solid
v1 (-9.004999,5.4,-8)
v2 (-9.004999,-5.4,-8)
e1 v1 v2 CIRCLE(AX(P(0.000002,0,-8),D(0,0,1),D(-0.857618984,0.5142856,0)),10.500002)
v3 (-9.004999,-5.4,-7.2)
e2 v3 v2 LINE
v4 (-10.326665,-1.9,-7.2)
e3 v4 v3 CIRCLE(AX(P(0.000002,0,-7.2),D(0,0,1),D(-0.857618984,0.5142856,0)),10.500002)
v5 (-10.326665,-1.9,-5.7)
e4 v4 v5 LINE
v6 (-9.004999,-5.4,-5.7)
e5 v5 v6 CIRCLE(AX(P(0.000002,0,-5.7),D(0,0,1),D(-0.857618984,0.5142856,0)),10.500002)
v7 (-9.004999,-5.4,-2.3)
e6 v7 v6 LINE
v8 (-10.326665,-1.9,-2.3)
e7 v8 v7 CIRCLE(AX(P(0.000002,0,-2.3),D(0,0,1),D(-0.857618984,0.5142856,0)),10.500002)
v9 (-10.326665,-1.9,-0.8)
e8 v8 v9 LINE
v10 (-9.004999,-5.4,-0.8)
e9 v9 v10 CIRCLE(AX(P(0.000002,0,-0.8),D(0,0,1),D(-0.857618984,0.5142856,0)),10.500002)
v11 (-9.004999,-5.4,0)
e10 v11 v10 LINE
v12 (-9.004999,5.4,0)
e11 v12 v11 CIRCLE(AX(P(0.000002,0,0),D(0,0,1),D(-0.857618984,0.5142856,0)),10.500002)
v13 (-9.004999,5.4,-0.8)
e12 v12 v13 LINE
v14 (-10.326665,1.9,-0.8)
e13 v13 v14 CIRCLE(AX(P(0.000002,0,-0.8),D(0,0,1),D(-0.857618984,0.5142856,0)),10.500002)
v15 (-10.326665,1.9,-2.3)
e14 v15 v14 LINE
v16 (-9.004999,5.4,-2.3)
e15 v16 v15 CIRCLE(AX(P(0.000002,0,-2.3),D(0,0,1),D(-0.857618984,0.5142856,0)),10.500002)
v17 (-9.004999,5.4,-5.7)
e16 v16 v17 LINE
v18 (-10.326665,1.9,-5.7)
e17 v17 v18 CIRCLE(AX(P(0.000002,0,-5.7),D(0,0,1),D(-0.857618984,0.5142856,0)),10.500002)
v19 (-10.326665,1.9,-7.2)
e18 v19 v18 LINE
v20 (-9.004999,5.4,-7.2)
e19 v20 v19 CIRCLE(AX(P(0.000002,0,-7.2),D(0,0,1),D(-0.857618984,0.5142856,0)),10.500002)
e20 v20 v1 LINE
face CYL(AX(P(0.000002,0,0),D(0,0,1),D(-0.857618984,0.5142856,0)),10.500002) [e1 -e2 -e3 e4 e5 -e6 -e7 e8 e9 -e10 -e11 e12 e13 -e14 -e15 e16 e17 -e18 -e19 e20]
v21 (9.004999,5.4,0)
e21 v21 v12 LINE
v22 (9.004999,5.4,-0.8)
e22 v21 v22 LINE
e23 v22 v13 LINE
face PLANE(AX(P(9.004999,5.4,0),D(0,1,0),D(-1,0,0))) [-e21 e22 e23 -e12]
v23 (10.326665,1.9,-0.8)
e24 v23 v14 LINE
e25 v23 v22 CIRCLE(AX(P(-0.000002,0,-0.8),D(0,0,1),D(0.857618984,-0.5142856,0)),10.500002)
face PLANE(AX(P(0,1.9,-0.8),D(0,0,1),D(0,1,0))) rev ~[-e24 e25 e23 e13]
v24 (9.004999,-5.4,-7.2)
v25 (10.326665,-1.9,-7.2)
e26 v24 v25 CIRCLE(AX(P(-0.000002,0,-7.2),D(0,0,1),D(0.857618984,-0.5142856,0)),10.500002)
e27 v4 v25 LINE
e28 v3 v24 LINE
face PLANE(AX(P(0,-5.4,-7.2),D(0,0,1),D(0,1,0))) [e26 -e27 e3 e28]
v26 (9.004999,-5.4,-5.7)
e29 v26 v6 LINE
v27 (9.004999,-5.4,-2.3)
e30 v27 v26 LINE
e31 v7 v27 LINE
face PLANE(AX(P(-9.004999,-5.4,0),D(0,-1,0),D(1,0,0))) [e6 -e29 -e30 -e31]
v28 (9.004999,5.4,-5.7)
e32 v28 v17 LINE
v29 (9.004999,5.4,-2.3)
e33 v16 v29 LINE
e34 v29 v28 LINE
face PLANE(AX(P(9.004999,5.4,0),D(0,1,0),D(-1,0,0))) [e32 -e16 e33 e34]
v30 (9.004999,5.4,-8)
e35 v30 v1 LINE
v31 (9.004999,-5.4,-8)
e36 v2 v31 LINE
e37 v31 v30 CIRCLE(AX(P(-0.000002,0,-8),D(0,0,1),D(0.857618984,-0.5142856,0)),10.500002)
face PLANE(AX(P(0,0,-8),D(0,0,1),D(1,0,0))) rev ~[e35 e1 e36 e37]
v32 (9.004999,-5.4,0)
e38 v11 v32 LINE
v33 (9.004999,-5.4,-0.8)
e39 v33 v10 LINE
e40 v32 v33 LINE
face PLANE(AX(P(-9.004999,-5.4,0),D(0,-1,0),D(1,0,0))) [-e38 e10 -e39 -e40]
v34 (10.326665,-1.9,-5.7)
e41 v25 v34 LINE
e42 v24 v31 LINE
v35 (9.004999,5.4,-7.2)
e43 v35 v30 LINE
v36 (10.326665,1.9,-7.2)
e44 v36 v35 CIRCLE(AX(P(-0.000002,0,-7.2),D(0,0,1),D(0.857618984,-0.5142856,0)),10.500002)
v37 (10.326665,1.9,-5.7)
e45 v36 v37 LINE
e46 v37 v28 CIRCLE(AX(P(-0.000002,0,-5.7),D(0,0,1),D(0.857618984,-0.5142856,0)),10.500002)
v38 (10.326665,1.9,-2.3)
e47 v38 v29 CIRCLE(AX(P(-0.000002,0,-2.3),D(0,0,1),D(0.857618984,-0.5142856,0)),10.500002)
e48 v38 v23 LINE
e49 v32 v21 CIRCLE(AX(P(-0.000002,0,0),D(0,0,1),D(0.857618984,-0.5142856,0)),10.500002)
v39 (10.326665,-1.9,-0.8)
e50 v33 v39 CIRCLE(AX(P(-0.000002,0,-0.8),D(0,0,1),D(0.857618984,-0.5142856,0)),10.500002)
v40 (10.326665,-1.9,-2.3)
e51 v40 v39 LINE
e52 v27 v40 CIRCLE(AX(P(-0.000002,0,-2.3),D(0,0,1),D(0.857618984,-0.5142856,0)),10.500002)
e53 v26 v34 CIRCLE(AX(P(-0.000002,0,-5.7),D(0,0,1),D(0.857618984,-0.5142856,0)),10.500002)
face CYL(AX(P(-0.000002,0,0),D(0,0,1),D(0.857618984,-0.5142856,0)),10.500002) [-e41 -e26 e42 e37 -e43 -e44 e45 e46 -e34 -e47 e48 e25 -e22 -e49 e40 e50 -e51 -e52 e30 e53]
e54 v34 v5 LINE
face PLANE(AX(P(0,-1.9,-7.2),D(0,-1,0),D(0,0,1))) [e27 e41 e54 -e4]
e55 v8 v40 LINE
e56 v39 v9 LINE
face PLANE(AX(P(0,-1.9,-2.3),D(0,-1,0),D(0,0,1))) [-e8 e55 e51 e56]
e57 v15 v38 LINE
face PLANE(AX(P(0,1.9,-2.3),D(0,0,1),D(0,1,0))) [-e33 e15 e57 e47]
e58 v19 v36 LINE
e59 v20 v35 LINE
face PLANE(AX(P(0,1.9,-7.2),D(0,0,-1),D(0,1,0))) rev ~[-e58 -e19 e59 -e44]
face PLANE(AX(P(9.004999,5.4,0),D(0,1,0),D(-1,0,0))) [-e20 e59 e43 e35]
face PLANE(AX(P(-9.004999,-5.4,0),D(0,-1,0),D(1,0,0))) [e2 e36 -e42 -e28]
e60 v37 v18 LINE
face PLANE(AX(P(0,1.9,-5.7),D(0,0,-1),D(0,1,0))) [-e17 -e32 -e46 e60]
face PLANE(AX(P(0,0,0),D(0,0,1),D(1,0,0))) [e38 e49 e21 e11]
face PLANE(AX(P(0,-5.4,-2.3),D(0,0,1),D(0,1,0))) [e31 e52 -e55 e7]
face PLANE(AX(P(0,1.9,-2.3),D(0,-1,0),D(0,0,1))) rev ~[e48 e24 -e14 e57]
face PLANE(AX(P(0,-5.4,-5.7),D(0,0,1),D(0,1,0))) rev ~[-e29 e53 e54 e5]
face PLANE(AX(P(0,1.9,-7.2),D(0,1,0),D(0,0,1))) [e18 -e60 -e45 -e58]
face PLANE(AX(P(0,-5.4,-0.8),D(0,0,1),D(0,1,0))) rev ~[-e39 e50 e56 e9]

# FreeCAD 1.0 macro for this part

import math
import FreeCAD as App
import Part
import Sketcher

V = App.Vector
Q = App.Units.Quantity

doc = App.newDocument("Part")
body = doc.addObject("PartDesign::Body", "Body")

# Sketch on XY plane
sketch1 = body.newObject("Sketcher::SketchObject", "Sketch")
sketch1.AttachmentSupport = (doc.getObject("XY_Plane"), [""])
sketch1.MapMode = "FlatFace"
sketch1.addGeometry([
    Part.ArcOfCircle(Part.Circle(V(0, 0, 0), V(0, 0, 1), 11), math.radians(-31), math.radians(31)),
    Part.LineSegment(V(9, 5, 0), V(-9, 5, 0)),
    Part.ArcOfCircle(Part.Circle(V(0, 0, 0), V(0, 0, 1), 11), math.radians(149), math.radians(211)),
    Part.LineSegment(V(-9, -5, 0), V(9, -5, 0)),
], False)
sketch1.addConstraint([
    Sketcher.Constraint("Coincident", 0, 2, 1, 1),
    Sketcher.Constraint("Coincident", 1, 2, 2, 1),
    Sketcher.Constraint("Coincident", 2, 2, 3, 1),
    Sketcher.Constraint("Coincident", 3, 2, 0, 1),
    Sketcher.Constraint("Horizontal", 1),
    Sketcher.Constraint("Horizontal", 3),
    Sketcher.Constraint("Coincident", 0, 3, -1, 1),
    Sketcher.Constraint("Coincident", 2, 3, -1, 1),
    Sketcher.Constraint("Equal", 0, 2),
    Sketcher.Constraint("Vertical", 1, 2, 2, 2),
    Sketcher.Constraint("DistanceY", -1, 1, 0, 2, Q("5.4 mm")),
    Sketcher.Constraint("DistanceX", 1, 2, 0, 2, Q("18.009998 mm")),
])
pad1 = body.newObject("PartDesign::Pad", "Pad")
pad1.Profile = sketch1
pad1.Length = 8
pad1.Reversed = True

# Sketch on YZ plane
sketch2 = body.newObject("Sketcher::SketchObject", "Sketch001")
sketch2.AttachmentSupport = (doc.getObject("YZ_Plane"), [""])
sketch2.MapMode = "FlatFace"
sketch2.addGeometry([
    Part.LineSegment(V(1.9, -0.8, 0), V(1.9, -2.3, 0)),  # 0
    Part.LineSegment(V(1.9, -2.3, 0), V(5.4, -2.3, 0)),  # 1
    Part.LineSegment(V(5.4, -2.3, 0), V(5.4, -0.8, 0)),  # 2
    Part.LineSegment(V(5.4, -0.8, 0), V(1.9, -0.8, 0)),  # 3
    Part.LineSegment(V(-5.4, -0.8, 0), V(-5.4, -2.3, 0)),  # 4
    Part.LineSegment(V(-5.4, -2.3, 0), V(-1.9, -2.3, 0)),  # 5
    Part.LineSegment(V(-1.9, -2.3, 0), V(-1.9, -0.8, 0)),  # 6
    Part.LineSegment(V(-1.9, -0.8, 0), V(-5.4, -0.8, 0)),  # 7
    Part.LineSegment(V(-5.4, -5.7, 0), V(-5.4, -7.2, 0)),  # 8
    Part.LineSegment(V(-5.4, -7.2, 0), V(-1.9, -7.2, 0)),  # 9
    Part.LineSegment(V(-1.9, -7.2, 0), V(-1.9, -5.7, 0)),  # 10
    Part.LineSegment(V(-1.9, -5.7, 0), V(-5.4, -5.7, 0)),  # 11
    Part.LineSegment(V(1.9, -5.7, 0), V(1.9, -7.2, 0)),  # 12
    Part.LineSegment(V(1.9, -7.2, 0), V(5.4, -7.2, 0)),  # 13
    Part.LineSegment(V(5.4, -7.2, 0), V(5.4, -5.7, 0)),  # 14
    Part.LineSegment(V(5.4, -5.7, 0), V(1.9, -5.7, 0)),  # 15
], False)
sketch2.addConstraint([
    Sketcher.Constraint("Coincident", 0, 2, 1, 1),
    Sketcher.Constraint("Coincident", 1, 2, 2, 1),
    Sketcher.Constraint("Coincident", 2, 2, 3, 1),
    Sketcher.Constraint("Coincident", 3, 2, 0, 1),
    Sketcher.Constraint("Coincident", 4, 2, 5, 1),
    Sketcher.Constraint("Coincident", 5, 2, 6, 1),
    Sketcher.Constraint("Coincident", 6, 2, 7, 1),
    Sketcher.Constraint("Coincident", 7, 2, 4, 1),
    Sketcher.Constraint("Coincident", 8, 2, 9, 1),
    Sketcher.Constraint("Coincident", 9, 2, 10, 1),
    Sketcher.Constraint("Coincident", 10, 2, 11, 1),
    Sketcher.Constraint("Coincident", 11, 2, 8, 1),
    Sketcher.Constraint("Coincident", 12, 2, 13, 1),
    Sketcher.Constraint("Coincident", 13, 2, 14, 1),
    Sketcher.Constraint("Coincident", 14, 2, 15, 1),
    Sketcher.Constraint("Coincident", 15, 2, 12, 1),
    Sketcher.Constraint("Vertical", 0),
    Sketcher.Constraint("Horizontal", 1),
    Sketcher.Constraint("Vertical", 2),
    Sketcher.Constraint("Horizontal", 3),
    Sketcher.Constraint("Vertical", 4),
    Sketcher.Constraint("Horizontal", 5),
    Sketcher.Constraint("Vertical", 6),
    Sketcher.Constraint("Horizontal", 7),
    Sketcher.Constraint("Vertical", 8),
    Sketcher.Constraint("Horizontal", 9),
    Sketcher.Constraint("Vertical", 10),
    Sketcher.Constraint("Horizontal", 11),
    Sketcher.Constraint("Vertical", 12),
    Sketcher.Constraint("Horizontal", 13),
    Sketcher.Constraint("Vertical", 14),
    Sketcher.Constraint("Horizontal", 15),
    Sketcher.Constraint("Symmetric", 1, 2, 4, 2, -2),
    Sketcher.Constraint("Symmetric", 3, 2, 6, 2, -2),
    Sketcher.Constraint("Symmetric", 9, 2, 12, 2, -2),
    Sketcher.Constraint("Symmetric", 11, 2, 14, 2, -2),
    Sketcher.Constraint("Vertical", 7, 2, 8, 2),
    Sketcher.Constraint("Vertical", 6, 2, 9, 2),
    Sketcher.Constraint("Equal", 6, 8),
    Sketcher.Constraint("DistanceX", 1, 1, 1, 2, Q("3.5 mm")),
    Sketcher.Constraint("DistanceY", 0, 2, 0, 1, Q("1.5 mm")),
    Sketcher.Constraint("DistanceX", -1, 1, 0, 2, Q("1.9 mm")),
    Sketcher.Constraint("DistanceY", 0, 2, -1, 1, Q("2.3 mm")),
    Sketcher.Constraint("DistanceY", 8, 2, -1, 1, Q("7.2 mm")),
])
pocket1 = body.newObject("PartDesign::Pocket", "Pocket")
pocket1.Profile = sketch2
pocket1.Length = 25
pocket1.Midplane = True

doc.recompute()
